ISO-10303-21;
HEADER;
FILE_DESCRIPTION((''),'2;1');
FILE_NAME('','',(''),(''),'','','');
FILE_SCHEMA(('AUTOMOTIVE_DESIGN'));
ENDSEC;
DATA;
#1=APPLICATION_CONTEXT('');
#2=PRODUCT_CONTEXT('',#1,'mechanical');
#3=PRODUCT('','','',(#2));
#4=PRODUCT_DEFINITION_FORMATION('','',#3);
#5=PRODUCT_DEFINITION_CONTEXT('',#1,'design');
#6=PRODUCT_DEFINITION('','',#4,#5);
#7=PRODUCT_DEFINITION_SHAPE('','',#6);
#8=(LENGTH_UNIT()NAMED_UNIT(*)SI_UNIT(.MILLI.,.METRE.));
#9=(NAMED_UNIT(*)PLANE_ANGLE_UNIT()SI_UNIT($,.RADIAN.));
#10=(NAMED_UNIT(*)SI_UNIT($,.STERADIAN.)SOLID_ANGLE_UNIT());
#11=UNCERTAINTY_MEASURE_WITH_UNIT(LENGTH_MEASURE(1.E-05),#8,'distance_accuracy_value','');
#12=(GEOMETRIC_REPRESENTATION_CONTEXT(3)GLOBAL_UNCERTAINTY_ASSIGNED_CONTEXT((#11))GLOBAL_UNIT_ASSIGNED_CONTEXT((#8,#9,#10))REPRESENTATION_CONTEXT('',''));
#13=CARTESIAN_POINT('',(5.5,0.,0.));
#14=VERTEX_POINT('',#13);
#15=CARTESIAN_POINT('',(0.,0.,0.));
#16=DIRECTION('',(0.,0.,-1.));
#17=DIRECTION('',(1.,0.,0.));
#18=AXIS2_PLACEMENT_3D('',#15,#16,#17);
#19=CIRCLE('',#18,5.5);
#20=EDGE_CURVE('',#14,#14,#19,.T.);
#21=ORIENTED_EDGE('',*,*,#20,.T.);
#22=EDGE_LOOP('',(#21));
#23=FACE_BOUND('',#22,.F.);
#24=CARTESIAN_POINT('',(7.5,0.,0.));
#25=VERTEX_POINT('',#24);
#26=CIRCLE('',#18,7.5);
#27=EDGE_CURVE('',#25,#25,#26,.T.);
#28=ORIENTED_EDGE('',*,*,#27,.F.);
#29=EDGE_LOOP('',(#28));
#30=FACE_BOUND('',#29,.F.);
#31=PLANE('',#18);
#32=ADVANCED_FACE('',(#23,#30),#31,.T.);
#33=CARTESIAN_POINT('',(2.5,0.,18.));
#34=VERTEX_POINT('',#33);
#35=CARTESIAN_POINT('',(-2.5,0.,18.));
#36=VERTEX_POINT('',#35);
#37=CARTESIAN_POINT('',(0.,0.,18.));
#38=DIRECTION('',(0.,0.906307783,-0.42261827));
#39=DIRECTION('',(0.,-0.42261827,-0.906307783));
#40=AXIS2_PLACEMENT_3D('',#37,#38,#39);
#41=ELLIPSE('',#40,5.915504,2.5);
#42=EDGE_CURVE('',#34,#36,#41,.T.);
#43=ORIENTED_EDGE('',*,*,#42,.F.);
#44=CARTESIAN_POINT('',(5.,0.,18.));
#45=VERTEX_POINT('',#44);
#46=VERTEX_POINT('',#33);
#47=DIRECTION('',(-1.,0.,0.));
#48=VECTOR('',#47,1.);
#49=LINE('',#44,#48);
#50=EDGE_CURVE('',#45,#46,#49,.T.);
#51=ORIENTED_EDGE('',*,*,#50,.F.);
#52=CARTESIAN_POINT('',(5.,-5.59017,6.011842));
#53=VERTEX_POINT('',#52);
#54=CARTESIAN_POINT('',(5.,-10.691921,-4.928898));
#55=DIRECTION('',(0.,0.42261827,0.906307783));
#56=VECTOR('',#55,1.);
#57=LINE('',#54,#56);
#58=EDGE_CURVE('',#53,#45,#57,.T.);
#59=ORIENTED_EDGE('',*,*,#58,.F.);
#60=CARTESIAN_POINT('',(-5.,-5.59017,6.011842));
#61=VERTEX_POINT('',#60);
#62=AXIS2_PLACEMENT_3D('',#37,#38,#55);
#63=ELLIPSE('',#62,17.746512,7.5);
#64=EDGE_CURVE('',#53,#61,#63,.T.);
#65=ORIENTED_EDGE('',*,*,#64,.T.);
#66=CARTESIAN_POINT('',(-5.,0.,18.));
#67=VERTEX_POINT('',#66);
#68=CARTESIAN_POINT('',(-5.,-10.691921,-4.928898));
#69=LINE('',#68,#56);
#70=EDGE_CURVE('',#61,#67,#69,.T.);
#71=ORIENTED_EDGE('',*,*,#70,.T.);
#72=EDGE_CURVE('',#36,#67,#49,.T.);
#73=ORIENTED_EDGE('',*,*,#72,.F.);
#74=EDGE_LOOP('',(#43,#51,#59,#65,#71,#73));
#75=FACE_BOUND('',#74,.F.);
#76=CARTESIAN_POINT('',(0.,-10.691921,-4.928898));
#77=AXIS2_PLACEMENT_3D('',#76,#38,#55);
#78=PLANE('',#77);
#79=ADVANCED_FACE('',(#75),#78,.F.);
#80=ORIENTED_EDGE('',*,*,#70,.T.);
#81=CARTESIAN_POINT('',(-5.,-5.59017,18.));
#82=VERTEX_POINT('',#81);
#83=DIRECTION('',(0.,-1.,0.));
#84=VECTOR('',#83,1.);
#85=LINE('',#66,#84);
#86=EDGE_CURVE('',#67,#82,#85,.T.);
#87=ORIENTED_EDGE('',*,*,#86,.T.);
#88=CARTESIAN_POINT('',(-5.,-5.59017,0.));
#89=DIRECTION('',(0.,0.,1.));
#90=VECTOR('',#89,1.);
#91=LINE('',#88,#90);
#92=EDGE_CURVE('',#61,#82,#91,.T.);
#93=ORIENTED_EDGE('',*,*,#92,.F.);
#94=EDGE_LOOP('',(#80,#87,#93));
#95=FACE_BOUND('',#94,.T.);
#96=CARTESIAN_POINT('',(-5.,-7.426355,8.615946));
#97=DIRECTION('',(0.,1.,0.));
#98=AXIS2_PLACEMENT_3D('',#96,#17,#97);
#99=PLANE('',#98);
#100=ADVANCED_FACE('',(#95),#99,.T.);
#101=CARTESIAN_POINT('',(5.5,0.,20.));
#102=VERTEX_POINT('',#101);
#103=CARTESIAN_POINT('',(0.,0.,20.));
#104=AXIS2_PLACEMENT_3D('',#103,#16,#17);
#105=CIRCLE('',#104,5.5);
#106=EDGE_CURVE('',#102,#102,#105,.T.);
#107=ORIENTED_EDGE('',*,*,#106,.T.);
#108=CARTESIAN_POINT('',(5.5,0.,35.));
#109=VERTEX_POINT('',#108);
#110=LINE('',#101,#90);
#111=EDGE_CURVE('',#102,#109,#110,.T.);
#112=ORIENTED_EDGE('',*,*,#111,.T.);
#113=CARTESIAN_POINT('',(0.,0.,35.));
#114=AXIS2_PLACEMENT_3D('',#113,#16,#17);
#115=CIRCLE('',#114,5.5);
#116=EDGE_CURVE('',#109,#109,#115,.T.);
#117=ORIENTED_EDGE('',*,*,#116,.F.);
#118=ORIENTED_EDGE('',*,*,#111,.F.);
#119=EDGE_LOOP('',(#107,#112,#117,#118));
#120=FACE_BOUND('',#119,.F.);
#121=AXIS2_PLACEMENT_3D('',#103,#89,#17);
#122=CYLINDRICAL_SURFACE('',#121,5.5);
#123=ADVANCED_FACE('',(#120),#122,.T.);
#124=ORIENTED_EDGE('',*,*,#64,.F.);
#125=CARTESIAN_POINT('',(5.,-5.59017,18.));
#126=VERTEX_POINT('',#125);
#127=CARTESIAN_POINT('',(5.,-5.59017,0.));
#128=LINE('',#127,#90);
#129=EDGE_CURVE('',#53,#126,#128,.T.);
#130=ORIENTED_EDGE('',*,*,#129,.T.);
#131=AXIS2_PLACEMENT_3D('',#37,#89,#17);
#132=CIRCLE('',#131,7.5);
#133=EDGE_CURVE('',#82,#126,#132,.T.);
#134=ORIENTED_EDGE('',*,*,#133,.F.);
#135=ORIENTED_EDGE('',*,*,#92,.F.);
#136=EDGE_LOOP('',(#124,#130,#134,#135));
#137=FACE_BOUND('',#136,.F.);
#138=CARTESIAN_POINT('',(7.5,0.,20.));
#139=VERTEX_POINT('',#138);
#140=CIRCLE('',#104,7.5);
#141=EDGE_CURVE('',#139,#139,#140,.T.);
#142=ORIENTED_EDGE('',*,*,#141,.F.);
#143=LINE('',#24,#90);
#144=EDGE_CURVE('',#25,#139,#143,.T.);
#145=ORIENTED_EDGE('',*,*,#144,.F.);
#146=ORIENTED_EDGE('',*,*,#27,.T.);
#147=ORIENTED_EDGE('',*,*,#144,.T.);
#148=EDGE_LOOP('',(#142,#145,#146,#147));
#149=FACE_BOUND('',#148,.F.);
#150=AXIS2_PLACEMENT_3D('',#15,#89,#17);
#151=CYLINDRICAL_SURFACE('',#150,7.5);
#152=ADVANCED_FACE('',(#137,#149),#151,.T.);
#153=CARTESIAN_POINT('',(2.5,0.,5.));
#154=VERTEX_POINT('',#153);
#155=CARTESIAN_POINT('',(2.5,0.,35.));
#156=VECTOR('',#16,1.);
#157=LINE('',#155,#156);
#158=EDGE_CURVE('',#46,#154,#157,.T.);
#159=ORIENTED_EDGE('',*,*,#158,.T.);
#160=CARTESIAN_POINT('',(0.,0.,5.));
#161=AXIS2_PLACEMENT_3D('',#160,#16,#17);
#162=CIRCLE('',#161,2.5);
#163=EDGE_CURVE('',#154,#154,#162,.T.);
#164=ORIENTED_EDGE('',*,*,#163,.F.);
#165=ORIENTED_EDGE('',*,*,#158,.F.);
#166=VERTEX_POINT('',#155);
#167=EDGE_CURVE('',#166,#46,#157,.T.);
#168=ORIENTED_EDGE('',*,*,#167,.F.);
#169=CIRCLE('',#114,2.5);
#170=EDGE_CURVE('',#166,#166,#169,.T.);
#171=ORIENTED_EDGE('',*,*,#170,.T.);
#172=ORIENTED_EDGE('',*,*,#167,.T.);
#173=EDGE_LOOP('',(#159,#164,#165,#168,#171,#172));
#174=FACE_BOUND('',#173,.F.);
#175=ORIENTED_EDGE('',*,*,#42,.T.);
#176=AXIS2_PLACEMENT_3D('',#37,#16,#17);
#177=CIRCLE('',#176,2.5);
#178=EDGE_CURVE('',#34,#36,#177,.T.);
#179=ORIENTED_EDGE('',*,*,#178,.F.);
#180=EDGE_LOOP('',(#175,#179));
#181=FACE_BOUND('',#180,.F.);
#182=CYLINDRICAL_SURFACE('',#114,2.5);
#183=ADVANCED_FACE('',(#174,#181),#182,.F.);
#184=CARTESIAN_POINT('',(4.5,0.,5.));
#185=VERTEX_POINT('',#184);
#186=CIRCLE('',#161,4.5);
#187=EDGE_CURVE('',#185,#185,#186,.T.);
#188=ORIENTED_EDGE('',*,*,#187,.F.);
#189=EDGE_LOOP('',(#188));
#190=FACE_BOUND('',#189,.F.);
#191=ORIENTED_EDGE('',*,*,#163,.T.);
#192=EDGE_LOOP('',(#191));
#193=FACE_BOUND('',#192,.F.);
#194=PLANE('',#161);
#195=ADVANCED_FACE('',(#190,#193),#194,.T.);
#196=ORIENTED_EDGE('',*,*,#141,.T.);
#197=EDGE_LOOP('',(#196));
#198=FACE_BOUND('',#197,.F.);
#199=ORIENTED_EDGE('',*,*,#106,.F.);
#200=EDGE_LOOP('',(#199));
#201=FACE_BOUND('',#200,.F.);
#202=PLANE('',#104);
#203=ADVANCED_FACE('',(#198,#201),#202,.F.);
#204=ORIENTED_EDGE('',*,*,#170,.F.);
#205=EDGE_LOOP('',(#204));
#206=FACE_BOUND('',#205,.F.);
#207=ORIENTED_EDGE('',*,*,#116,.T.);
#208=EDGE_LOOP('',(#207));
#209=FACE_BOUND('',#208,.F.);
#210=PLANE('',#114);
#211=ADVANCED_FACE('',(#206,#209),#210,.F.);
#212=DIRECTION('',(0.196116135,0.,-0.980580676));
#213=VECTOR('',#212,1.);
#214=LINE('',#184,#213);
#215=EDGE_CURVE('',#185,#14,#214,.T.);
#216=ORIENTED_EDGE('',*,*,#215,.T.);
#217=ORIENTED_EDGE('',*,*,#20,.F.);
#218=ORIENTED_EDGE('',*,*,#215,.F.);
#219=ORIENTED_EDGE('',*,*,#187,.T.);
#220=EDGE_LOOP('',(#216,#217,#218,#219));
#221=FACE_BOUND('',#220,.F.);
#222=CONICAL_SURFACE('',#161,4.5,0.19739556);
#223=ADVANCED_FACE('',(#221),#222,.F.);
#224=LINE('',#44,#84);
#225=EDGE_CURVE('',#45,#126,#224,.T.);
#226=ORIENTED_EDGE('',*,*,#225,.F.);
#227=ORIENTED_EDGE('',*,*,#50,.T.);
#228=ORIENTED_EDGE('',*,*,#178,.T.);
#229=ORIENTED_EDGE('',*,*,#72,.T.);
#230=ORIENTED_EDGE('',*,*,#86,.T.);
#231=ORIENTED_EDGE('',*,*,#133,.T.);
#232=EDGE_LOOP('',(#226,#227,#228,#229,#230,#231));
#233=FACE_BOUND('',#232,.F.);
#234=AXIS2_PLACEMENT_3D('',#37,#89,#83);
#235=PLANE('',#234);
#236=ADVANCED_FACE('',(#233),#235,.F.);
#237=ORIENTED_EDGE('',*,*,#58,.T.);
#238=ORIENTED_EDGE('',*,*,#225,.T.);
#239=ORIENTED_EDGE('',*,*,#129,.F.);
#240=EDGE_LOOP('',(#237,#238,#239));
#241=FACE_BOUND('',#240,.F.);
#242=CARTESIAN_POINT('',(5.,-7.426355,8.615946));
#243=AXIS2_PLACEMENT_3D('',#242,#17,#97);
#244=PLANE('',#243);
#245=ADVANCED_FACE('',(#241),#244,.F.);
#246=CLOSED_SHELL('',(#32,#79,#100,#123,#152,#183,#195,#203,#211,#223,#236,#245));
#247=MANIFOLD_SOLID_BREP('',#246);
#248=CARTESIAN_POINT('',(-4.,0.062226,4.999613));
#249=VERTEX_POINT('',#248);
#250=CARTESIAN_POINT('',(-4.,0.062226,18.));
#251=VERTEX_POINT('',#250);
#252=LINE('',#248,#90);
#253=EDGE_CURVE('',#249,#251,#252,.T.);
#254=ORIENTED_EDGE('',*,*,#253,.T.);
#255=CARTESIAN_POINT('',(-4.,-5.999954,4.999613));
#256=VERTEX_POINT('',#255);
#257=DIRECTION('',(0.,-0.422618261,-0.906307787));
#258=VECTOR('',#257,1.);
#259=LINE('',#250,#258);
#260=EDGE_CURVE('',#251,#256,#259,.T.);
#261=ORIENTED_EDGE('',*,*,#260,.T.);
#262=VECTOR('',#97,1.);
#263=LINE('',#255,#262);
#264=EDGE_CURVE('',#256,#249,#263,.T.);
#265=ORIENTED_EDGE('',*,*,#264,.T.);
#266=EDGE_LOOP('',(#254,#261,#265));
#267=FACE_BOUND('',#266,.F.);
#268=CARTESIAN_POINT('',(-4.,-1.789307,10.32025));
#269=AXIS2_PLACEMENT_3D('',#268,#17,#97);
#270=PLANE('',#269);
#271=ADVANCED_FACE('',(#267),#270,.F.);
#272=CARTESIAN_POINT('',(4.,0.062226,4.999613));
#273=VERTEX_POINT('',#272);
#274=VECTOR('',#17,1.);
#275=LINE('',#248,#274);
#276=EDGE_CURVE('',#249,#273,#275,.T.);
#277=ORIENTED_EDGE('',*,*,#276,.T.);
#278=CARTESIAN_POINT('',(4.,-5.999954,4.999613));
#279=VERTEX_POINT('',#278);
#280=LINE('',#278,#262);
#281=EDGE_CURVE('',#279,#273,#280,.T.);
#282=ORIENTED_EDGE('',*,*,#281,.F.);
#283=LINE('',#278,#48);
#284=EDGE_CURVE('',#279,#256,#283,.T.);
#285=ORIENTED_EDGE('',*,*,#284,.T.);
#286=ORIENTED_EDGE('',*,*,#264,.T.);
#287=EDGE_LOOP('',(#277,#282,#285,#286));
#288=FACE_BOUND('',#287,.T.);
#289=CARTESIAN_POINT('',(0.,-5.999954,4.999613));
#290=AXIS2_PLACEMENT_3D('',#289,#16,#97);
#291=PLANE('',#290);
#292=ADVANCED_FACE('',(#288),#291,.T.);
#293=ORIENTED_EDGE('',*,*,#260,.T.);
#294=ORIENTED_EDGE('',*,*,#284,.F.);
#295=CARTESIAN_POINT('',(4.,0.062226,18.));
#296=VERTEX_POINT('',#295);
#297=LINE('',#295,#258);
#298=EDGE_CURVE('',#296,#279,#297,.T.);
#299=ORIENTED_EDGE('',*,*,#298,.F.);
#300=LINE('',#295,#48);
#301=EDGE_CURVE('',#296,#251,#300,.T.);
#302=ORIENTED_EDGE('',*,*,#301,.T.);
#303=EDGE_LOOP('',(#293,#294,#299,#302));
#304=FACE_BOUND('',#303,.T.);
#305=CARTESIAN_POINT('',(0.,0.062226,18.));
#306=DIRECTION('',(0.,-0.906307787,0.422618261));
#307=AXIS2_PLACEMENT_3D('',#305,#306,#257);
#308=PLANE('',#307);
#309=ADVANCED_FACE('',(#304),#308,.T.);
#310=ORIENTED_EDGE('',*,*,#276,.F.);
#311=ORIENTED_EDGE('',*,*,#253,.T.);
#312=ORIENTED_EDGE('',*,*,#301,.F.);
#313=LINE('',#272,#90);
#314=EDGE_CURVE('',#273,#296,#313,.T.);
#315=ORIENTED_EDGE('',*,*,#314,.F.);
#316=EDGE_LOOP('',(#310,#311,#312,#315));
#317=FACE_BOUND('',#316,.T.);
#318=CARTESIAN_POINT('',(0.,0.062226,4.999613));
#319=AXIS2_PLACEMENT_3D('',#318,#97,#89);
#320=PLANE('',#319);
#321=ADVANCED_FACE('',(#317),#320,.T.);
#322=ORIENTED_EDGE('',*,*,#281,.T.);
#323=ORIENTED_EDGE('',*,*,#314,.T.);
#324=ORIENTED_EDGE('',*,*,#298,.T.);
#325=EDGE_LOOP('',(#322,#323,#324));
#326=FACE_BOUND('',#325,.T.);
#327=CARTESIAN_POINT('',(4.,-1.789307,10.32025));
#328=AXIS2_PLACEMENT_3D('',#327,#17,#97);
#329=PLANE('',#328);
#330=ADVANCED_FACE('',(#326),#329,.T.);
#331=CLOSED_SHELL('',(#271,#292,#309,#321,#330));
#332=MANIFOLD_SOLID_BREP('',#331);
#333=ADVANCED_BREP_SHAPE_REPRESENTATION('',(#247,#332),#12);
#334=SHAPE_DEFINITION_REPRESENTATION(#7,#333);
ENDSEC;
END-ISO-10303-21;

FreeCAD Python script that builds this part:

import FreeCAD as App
import Part
import Sketcher
from FreeCAD import Vector
Q = App.Units.Quantity

doc = App.newDocument("Part")
body = doc.addObject("PartDesign::Body", "Body")

sketch1 = body.newObject("Sketcher::SketchObject", "Sketch")
sketch1.AttachmentSupport = (doc.getObject("XZ_Plane"), [""])
sketch1.MapMode = "FlatFace"
sketch1.addGeometry(Part.LineSegment(Vector(5.5, 0, 0), Vector(7.5, 0, 0)), False)
sketch1.addGeometry(Part.LineSegment(Vector(7.5, 0, 0), Vector(7.5, 20, 0)), False)
sketch1.addGeometry(Part.LineSegment(Vector(7.5, 20, 0), Vector(5.5, 20, 0)), False)
sketch1.addGeometry(Part.LineSegment(Vector(5.5, 20, 0), Vector(5.5, 35, 0)), False)
sketch1.addGeometry(Part.LineSegment(Vector(5.5, 35, 0), Vector(2.5, 35, 0)), False)
sketch1.addGeometry(Part.LineSegment(Vector(2.5, 35, 0), Vector(2.5, 5, 0)), False)
sketch1.addGeometry(Part.LineSegment(Vector(2.5, 5, 0), Vector(4.5, 5, 0)), False)
sketch1.addGeometry(Part.LineSegment(Vector(4.5, 5, 0), Vector(5.5, 0, 0)), False)
sketch1.addConstraint(Sketcher.Constraint("Coincident", 0, 2, 1, 1))
sketch1.addConstraint(Sketcher.Constraint("Coincident", 1, 2, 2, 1))
sketch1.addConstraint(Sketcher.Constraint("Coincident", 2, 2, 3, 1))
sketch1.addConstraint(Sketcher.Constraint("Coincident", 3, 2, 4, 1))
sketch1.addConstraint(Sketcher.Constraint("Coincident", 4, 2, 5, 1))
sketch1.addConstraint(Sketcher.Constraint("Coincident", 5, 2, 6, 1))
sketch1.addConstraint(Sketcher.Constraint("Coincident", 6, 2, 7, 1))
sketch1.addConstraint(Sketcher.Constraint("Coincident", 7, 2, 0, 1))
sketch1.addConstraint(Sketcher.Constraint("Horizontal", 0))
sketch1.addConstraint(Sketcher.Constraint("Vertical", 1))
sketch1.addConstraint(Sketcher.Constraint("Horizontal", 2))
sketch1.addConstraint(Sketcher.Constraint("Vertical", 3))
sketch1.addConstraint(Sketcher.Constraint("Horizontal", 4))
sketch1.addConstraint(Sketcher.Constraint("Vertical", 5))
sketch1.addConstraint(Sketcher.Constraint("Horizontal", 6))
sketch1.addConstraint(Sketcher.Constraint("PointOnObject", 0, 2, -1))
sketch1.addConstraint(Sketcher.Constraint("Vertical", 3, 2, 7, 2))
sketch1.addConstraint(Sketcher.Constraint("Equal", 2, 6))
sketch1.addConstraint(Sketcher.Constraint("DistanceX", 0, 1, 0, 2, Q("2 mm")))
sketch1.addConstraint(Sketcher.Constraint("DistanceX", 4, 2, 4, 1, Q("3 mm")))
sketch1.addConstraint(Sketcher.Constraint("DistanceY", 1, 1, 1, 2, Q("20 mm")))
sketch1.addConstraint(Sketcher.Constraint("DistanceY", 3, 1, 3, 2, Q("15 mm")))
sketch1.addConstraint(Sketcher.Constraint("DistanceY", 5, 2, 5, 1, Q("30 mm")))
sketch1.addConstraint(Sketcher.Constraint("DistanceX", -1, 1, 0, 2, Q("7.5 mm")))
revolution = body.newObject("PartDesign::Revolution", "Revolution")
revolution.Profile = sketch1
revolution.ReferenceAxis = (sketch1, ["V_Axis"])
revolution.Angle = 360

sketch2 = body.newObject("Sketcher::SketchObject", "Sketch001")
sketch2.AttachmentSupport = (doc.getObject("YZ_Plane"), [""])
sketch2.MapMode = "FlatFace"
sketch2.addGeometry(Part.LineSegment(Vector(-10.691921, 18, 0), Vector(-10.691921, -4.928898, 0)), False)
sketch2.addGeometry(Part.LineSegment(Vector(-10.691921, -4.928898, 0), Vector(0, 18, 0)), False)
sketch2.addGeometry(Part.LineSegment(Vector(0, 18, 0), Vector(-10.691921, 18, 0)), False)
sketch2.addConstraint(Sketcher.Constraint("Coincident", 0, 2, 1, 1))
sketch2.addConstraint(Sketcher.Constraint("Coincident", 1, 2, 2, 1))
sketch2.addConstraint(Sketcher.Constraint("Coincident", 2, 2, 0, 1))
sketch2.addConstraint(Sketcher.Constraint("Vertical", 0))
sketch2.addConstraint(Sketcher.Constraint("Horizontal", 2))
sketch2.addConstraint(Sketcher.Constraint("PointOnObject", 1, 2, -2))
sketch2.addConstraint(Sketcher.Constraint("Angle", 1, Q("64.999999 deg")))
sketch2.addConstraint(Sketcher.Constraint("DistanceY", -1, 1, 1, 2, Q("18 mm")))
sketch2.addConstraint(Sketcher.Constraint("DistanceY", 0, 2, 0, 1, Q("22.928898 mm")))
pocket1 = body.newObject("PartDesign::Pocket", "Pocket")
pocket1.Profile = sketch2
pocket1.Length = 10
pocket1.Midplane = True
body2 = doc.addObject("PartDesign::Body", "Body001")

sketch3 = body2.newObject("Sketcher::SketchObject", "Sketch002")
sketch3.AttachmentSupport = (doc.getObject("YZ_Plane001"), [""])
sketch3.MapMode = "FlatFace"
sketch3.addGeometry(Part.LineSegment(Vector(-5.999954, 4.999613, 0), Vector(0.062226, 4.999613, 0)), False)
sketch3.addGeometry(Part.LineSegment(Vector(0.062226, 4.999613, 0), Vector(0.062226, 18, 0)), False)
sketch3.addGeometry(Part.LineSegment(Vector(0.062226, 18, 0), Vector(-5.999954, 4.999613, 0)), False)
sketch3.addConstraint(Sketcher.Constraint("Coincident", 0, 2, 1, 1))
sketch3.addConstraint(Sketcher.Constraint("Coincident", 1, 2, 2, 1))
sketch3.addConstraint(Sketcher.Constraint("Coincident", 2, 2, 0, 1))
sketch3.addConstraint(Sketcher.Constraint("Horizontal", 0))
sketch3.addConstraint(Sketcher.Constraint("Vertical", 1))
sketch3.addConstraint(Sketcher.Constraint("Angle", 2, Q("-115 deg")))
sketch3.addConstraint(Sketcher.Constraint("DistanceY", -1, 1, 1, 2, Q("18 mm")))
sketch3.addConstraint(Sketcher.Constraint("DistanceX", 0, 1, 0, 2, Q("6.06218 mm")))
sketch3.addConstraint(Sketcher.Constraint("DistanceX", -1, 1, 0, 2, Q("0.062226 mm")))
pad1 = body2.newObject("PartDesign::Pad", "Pad")
pad1.Profile = sketch3
pad1.Length = 8
pad1.Midplane = True

doc.recompute()
